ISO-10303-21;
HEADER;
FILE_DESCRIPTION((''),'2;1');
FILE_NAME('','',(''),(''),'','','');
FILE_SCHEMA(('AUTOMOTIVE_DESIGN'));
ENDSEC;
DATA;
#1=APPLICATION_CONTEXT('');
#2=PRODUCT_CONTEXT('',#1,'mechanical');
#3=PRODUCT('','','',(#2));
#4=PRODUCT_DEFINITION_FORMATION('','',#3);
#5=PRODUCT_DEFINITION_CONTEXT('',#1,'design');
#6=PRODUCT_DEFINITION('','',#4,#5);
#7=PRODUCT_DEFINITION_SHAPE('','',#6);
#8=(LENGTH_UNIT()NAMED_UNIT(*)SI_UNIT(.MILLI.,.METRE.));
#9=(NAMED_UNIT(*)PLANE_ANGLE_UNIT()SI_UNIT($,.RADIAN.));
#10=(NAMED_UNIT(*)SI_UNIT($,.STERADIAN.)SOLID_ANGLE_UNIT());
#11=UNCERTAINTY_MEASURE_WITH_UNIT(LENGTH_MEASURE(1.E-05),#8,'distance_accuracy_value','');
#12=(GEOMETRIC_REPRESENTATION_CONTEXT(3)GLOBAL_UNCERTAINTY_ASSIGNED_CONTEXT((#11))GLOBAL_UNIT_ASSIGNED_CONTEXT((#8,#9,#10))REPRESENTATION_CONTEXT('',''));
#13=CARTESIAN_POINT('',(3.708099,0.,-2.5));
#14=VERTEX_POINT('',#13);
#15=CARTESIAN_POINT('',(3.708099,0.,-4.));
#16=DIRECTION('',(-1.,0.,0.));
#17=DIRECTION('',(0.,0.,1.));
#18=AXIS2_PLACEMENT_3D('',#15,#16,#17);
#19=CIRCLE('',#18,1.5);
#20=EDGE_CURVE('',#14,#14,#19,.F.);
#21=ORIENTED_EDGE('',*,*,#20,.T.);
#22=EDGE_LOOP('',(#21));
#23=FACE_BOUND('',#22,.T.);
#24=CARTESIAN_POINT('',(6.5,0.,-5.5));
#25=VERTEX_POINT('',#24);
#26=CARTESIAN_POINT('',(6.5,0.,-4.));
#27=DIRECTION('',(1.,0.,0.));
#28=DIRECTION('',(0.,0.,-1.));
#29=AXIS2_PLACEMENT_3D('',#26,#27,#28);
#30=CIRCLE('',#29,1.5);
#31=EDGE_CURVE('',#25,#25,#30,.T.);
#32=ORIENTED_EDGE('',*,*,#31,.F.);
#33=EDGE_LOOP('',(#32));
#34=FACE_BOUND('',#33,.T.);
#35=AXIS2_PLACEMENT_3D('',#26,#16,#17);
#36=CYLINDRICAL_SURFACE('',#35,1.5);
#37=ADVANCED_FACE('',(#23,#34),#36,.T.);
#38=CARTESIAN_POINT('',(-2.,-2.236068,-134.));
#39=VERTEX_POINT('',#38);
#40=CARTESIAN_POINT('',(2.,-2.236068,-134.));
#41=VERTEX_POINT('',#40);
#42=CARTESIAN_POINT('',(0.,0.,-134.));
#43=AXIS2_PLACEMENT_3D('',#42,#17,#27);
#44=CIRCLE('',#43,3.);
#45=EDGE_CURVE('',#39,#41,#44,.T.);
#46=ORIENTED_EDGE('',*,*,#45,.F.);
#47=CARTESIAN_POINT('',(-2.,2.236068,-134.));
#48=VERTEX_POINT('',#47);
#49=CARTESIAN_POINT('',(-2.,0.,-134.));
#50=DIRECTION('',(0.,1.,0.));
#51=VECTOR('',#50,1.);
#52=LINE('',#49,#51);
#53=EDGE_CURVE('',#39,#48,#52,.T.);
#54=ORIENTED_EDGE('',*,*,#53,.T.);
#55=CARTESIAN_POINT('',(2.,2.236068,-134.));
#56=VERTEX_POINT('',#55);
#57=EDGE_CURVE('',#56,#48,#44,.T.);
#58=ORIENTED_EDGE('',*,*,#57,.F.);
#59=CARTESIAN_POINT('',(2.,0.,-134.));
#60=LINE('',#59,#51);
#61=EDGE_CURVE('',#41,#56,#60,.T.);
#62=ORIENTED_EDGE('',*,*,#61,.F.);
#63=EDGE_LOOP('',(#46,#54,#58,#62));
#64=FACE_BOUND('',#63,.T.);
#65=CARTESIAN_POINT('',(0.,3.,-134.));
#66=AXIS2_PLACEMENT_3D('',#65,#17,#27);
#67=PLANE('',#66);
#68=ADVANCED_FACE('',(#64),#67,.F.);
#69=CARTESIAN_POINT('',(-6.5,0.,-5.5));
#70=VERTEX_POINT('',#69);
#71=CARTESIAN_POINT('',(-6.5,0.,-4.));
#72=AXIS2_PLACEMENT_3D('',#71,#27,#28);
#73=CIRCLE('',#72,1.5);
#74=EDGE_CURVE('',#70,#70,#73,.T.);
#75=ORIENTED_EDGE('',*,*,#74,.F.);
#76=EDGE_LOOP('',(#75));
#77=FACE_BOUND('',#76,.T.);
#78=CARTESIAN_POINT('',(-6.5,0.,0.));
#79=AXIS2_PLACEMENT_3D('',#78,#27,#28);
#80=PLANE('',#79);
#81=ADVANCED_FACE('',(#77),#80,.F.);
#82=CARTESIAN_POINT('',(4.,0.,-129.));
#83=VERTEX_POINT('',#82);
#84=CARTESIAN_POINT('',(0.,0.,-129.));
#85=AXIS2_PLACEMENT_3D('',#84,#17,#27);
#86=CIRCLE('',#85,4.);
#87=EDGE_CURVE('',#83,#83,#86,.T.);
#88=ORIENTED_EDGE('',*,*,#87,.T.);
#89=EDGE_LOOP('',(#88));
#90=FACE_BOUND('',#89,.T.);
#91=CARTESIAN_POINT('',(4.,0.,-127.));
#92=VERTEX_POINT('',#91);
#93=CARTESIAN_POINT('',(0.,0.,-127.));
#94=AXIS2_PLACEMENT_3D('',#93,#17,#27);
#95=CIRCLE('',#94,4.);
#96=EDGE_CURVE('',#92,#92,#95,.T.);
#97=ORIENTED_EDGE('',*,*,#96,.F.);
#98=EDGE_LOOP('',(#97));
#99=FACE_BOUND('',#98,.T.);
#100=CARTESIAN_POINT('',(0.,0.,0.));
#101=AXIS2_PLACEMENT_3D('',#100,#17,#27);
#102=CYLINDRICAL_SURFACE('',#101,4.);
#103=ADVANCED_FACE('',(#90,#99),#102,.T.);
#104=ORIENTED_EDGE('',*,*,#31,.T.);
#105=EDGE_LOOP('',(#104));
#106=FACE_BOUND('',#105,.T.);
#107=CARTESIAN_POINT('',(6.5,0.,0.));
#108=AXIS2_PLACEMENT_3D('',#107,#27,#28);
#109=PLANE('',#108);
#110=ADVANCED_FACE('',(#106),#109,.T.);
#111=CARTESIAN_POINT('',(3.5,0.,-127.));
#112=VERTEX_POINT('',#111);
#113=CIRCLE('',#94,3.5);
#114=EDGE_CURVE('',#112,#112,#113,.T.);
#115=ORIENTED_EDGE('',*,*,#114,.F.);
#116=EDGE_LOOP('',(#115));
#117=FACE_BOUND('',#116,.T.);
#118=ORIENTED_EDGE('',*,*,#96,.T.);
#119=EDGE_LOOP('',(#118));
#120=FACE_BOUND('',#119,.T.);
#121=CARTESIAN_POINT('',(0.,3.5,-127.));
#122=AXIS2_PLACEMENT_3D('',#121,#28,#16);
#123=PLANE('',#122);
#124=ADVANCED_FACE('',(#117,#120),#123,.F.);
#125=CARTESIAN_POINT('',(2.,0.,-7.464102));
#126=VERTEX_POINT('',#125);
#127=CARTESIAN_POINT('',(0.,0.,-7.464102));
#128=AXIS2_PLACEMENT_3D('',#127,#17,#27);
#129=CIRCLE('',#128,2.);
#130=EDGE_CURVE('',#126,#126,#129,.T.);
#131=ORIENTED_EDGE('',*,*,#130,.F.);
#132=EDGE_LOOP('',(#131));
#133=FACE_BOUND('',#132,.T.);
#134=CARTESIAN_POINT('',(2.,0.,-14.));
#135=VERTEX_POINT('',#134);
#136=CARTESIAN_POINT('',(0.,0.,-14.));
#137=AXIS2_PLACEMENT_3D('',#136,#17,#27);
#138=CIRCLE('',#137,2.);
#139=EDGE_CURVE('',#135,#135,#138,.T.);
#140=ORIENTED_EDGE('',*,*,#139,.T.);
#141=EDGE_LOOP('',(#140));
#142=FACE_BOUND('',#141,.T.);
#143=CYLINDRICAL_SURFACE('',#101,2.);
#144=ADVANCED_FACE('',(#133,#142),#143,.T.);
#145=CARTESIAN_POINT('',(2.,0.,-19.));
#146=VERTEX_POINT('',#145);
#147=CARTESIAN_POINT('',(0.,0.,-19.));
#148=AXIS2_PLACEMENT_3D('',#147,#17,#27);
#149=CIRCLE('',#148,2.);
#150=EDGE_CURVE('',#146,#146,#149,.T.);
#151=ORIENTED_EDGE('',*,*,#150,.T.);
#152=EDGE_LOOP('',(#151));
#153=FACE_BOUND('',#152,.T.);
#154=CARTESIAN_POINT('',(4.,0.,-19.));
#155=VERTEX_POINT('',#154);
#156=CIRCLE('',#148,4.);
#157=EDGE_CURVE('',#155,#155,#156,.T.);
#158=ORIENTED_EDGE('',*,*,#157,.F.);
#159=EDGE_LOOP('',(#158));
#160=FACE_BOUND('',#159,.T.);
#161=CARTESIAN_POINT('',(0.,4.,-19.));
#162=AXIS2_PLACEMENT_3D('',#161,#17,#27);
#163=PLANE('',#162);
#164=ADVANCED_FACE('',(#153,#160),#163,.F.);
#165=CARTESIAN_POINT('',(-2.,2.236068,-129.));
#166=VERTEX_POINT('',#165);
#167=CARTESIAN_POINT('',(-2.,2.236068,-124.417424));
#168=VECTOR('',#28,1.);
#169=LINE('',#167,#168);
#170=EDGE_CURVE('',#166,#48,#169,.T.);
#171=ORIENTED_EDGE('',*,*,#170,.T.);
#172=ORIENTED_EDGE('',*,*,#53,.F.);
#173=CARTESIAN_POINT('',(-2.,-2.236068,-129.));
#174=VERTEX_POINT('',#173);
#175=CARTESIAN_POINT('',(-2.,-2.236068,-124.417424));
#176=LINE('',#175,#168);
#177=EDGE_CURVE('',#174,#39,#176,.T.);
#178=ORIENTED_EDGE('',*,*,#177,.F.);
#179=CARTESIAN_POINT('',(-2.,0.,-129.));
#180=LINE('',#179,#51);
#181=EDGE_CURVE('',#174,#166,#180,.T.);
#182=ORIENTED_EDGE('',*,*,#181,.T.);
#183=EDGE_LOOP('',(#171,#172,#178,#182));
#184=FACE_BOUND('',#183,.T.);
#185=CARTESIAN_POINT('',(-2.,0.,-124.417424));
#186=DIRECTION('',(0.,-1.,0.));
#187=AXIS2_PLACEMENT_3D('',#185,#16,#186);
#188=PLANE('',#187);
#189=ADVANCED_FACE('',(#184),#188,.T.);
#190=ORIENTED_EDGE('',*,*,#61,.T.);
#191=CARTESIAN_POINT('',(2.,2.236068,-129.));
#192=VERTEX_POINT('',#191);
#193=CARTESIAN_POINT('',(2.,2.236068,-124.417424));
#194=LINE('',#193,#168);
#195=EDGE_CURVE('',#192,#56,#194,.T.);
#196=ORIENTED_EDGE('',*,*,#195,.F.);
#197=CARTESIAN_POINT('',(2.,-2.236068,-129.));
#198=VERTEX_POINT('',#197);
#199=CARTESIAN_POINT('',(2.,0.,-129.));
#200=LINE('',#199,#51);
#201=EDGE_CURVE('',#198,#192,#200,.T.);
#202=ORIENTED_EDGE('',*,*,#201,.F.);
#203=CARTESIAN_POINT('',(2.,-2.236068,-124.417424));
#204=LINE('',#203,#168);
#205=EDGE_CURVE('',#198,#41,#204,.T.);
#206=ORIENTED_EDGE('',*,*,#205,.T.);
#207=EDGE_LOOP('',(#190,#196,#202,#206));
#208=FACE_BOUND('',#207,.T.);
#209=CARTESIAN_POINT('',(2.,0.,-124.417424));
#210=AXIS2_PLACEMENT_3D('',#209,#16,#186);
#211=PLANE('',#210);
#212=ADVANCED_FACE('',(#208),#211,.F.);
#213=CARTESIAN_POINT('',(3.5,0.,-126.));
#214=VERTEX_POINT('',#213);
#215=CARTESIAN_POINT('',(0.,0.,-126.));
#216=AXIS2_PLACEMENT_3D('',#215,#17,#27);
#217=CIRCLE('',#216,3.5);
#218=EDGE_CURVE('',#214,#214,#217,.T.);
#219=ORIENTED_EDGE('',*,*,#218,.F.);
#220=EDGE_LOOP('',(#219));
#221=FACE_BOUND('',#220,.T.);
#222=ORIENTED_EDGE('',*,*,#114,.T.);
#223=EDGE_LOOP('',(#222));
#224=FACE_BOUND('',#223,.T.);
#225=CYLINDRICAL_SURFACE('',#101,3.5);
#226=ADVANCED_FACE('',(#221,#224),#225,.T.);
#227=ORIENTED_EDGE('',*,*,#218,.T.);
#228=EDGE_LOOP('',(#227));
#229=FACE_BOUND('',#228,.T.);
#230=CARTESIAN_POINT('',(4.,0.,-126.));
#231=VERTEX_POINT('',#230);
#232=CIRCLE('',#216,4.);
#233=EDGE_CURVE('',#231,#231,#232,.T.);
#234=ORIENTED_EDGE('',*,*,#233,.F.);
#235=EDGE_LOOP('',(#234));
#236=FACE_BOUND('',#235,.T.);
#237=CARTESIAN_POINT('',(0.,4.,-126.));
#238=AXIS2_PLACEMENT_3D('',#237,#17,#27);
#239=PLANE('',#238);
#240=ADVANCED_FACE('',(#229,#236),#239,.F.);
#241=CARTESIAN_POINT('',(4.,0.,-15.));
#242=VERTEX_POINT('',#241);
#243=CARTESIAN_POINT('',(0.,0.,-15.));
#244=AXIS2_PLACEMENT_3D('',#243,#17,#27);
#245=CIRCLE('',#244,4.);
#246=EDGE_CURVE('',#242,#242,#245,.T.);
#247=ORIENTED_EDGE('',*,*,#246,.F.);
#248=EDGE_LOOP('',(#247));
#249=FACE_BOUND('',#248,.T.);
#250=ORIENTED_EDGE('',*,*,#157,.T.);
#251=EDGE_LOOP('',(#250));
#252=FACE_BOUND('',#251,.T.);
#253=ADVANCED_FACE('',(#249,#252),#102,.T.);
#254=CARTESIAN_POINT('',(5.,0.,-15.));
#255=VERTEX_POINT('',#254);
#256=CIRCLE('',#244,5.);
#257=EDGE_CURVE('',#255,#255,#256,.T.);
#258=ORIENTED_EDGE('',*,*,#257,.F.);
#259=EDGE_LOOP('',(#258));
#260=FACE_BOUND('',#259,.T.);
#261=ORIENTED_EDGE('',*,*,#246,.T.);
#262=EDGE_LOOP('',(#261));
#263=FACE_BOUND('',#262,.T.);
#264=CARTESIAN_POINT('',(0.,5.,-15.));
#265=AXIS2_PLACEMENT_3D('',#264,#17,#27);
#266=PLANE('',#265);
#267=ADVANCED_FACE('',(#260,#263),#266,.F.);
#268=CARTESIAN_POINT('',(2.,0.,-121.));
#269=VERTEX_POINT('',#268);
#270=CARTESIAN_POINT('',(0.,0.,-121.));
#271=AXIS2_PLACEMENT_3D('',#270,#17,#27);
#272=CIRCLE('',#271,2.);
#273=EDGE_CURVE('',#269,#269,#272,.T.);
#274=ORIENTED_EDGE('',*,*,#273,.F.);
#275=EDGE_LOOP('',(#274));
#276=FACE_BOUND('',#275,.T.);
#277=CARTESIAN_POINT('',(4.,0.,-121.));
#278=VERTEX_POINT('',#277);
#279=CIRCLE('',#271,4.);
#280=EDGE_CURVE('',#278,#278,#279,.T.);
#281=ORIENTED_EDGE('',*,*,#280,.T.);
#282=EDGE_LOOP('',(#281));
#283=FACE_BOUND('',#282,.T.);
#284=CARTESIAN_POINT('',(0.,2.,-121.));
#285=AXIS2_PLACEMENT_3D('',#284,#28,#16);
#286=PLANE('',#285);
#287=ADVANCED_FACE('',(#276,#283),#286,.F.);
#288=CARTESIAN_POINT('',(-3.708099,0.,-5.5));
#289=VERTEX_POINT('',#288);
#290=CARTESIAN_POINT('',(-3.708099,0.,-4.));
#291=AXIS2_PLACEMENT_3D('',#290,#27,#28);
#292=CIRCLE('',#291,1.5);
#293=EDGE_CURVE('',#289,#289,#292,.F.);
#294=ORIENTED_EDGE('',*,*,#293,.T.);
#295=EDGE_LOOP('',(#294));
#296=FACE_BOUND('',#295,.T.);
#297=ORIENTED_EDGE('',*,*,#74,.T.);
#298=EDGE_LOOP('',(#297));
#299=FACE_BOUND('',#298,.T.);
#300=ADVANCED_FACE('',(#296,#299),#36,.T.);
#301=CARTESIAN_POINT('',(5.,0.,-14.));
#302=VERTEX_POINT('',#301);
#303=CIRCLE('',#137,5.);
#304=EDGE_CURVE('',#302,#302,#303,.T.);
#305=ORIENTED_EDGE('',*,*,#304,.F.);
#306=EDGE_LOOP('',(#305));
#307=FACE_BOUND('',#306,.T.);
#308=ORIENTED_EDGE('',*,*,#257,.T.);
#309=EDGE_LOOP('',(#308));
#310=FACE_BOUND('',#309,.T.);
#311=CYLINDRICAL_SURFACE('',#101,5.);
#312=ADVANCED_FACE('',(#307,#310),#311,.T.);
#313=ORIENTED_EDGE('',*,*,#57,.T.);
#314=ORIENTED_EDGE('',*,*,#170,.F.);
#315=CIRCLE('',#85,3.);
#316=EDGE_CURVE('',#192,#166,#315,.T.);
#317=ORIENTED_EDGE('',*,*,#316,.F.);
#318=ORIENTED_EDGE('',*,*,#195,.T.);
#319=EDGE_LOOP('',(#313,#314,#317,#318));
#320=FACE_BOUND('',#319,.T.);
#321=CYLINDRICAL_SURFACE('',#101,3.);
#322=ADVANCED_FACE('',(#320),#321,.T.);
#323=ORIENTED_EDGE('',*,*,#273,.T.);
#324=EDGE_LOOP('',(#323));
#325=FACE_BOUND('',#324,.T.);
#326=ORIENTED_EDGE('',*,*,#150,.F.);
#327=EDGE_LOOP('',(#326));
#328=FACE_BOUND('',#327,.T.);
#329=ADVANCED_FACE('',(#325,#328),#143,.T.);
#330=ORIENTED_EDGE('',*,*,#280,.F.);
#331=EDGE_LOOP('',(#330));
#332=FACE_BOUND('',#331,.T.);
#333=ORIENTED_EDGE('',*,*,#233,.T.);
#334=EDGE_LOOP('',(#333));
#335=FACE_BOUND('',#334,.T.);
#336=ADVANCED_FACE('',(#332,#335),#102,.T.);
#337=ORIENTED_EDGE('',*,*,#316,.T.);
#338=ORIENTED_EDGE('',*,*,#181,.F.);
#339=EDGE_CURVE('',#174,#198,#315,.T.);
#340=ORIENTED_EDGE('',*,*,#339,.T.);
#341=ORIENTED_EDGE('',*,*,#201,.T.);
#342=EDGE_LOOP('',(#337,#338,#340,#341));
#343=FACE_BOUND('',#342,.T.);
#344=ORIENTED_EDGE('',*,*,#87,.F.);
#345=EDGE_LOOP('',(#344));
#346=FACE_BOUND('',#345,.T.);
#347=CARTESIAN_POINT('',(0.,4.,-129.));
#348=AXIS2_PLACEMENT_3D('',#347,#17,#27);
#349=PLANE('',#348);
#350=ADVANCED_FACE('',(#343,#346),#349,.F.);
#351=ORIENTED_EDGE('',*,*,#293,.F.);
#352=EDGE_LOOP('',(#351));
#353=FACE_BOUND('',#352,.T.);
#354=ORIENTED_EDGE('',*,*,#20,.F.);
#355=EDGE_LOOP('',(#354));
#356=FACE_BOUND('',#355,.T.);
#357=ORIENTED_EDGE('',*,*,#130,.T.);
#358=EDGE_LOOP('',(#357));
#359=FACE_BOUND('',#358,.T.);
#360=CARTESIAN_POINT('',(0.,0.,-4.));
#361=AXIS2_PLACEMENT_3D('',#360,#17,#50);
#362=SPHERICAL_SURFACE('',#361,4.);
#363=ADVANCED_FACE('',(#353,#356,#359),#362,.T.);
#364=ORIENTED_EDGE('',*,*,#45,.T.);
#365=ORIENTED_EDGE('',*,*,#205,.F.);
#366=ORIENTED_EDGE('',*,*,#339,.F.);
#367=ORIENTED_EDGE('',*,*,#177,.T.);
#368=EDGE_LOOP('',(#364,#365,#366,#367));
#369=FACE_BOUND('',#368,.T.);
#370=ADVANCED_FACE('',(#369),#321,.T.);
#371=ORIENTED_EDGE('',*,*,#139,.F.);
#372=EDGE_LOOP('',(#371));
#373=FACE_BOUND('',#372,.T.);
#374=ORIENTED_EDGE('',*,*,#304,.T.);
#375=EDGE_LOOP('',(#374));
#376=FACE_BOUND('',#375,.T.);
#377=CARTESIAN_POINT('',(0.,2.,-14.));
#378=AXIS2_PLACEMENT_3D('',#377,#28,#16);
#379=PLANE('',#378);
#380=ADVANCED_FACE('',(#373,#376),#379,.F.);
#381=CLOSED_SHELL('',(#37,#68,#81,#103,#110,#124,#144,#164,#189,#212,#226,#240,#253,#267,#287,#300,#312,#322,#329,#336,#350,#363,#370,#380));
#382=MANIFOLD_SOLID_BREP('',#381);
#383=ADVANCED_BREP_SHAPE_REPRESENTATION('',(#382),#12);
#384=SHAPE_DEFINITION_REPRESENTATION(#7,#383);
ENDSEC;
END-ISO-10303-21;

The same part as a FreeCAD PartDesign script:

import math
import FreeCAD as App
import Part
import Sketcher
from FreeCAD import Vector
Q = App.Units.Quantity

doc = App.newDocument("Part")
body = doc.addObject("PartDesign::Body", "Body")

# Sketch on YZ plane
sketch1 = doc.addObject("Sketcher::SketchObject", "Sketch")
body.addObject(sketch1)
sketch1.AttachmentSupport = (doc.YZ_Plane, [""])
sketch1.MapMode = "FlatFace"
sketch1.addGeometry([
    Part.LineSegment(Vector(2, -14, 0), Vector(2, -7.5, 0)),  # 0
    Part.ArcOfCircle(Part.Circle(Vector(0, -4, 0), Vector(0, 0, 1), 4), math.radians(-60), math.radians(90)),  # 1
    Part.LineSegment(Vector(0, 0, 0), Vector(0, -134, 0)),  # 2
    Part.LineSegment(Vector(0, -134, 0), Vector(3, -134, 0)),  # 3
    Part.LineSegment(Vector(3, -134, 0), Vector(3, -129, 0)),  # 4
    Part.LineSegment(Vector(3, -129, 0), Vector(4, -129, 0)),  # 5
    Part.LineSegment(Vector(4, -129, 0), Vector(4, -127, 0)),  # 6
    Part.LineSegment(Vector(4, -127, 0), Vector(3.5, -127, 0)),  # 7
    Part.LineSegment(Vector(3.5, -127, 0), Vector(3.5, -126, 0)),  # 8
    Part.LineSegment(Vector(3.5, -126, 0), Vector(4, -126, 0)),  # 9
    Part.LineSegment(Vector(4, -126, 0), Vector(4, -121, 0)),  # 10
    Part.LineSegment(Vector(4, -121, 0), Vector(2, -121, 0)),  # 11
    Part.LineSegment(Vector(2, -121, 0), Vector(2, -19, 0)),  # 12
    Part.LineSegment(Vector(2, -19, 0), Vector(4, -19, 0)),  # 13
    Part.LineSegment(Vector(4, -19, 0), Vector(4, -15, 0)),  # 14
    Part.LineSegment(Vector(4, -15, 0), Vector(5, -15, 0)),  # 15
    Part.LineSegment(Vector(5, -15, 0), Vector(5, -14, 0)),  # 16
    Part.LineSegment(Vector(5, -14, 0), Vector(2, -14, 0)),  # 17
], False)
sketch1.addConstraint([
    Sketcher.Constraint("Coincident", 0, 2, 1, 1),
    Sketcher.Constraint("Coincident", 1, 2, 2, 1),
    Sketcher.Constraint("Coincident", 2, 2, 3, 1),
    Sketcher.Constraint("Coincident", 3, 2, 4, 1),
    Sketcher.Constraint("Coincident", 4, 2, 5, 1),
    Sketcher.Constraint("Coincident", 5, 2, 6, 1),
    Sketcher.Constraint("Coincident", 6, 2, 7, 1),
    Sketcher.Constraint("Coincident", 7, 2, 8, 1),
    Sketcher.Constraint("Coincident", 8, 2, 9, 1),
    Sketcher.Constraint("Coincident", 9, 2, 10, 1),
    Sketcher.Constraint("Coincident", 10, 2, 11, 1),
    Sketcher.Constraint("Coincident", 11, 2, 12, 1),
    Sketcher.Constraint("Coincident", 12, 2, 13, 1),
    Sketcher.Constraint("Coincident", 13, 2, 14, 1),
    Sketcher.Constraint("Coincident", 14, 2, 15, 1),
    Sketcher.Constraint("Coincident", 15, 2, 16, 1),
    Sketcher.Constraint("Coincident", 16, 2, 17, 1),
    Sketcher.Constraint("Coincident", 17, 2, 0, 1),
    Sketcher.Constraint("Vertical", 0),
    Sketcher.Constraint("Vertical", 2),
    Sketcher.Constraint("Horizontal", 3),
    Sketcher.Constraint("Vertical", 4),
    Sketcher.Constraint("Horizontal", 5),
    Sketcher.Constraint("Vertical", 6),
    Sketcher.Constraint("Horizontal", 7),
    Sketcher.Constraint("Vertical", 8),
    Sketcher.Constraint("Horizontal", 9),
    Sketcher.Constraint("Vertical", 10),
    Sketcher.Constraint("Horizontal", 11),
    Sketcher.Constraint("Vertical", 12),
    Sketcher.Constraint("Horizontal", 13),
    Sketcher.Constraint("Vertical", 14),
    Sketcher.Constraint("Horizontal", 15),
    Sketcher.Constraint("Vertical", 16),
    Sketcher.Constraint("Horizontal", 17),
    Sketcher.Constraint("Coincident", 1, 2, -1, 1),
    Sketcher.Constraint("PointOnObject", 1, 3, -2),
    Sketcher.Constraint("Vertical", 6, 2, 9, 2),
    Sketcher.Constraint("Vertical", 0, 2, 11, 2),
    Sketcher.Constraint("Vertical", 10, 2, 13, 2),
    Sketcher.Constraint("Equal", 5, 15),
    Sketcher.Constraint("Equal", 3, 17),
    Sketcher.Constraint("Equal", 13, 6),
    Sketcher.Constraint("Equal", 15, 8),
    Sketcher.Constraint("Equal", 4, 10),
    Sketcher.Constraint("Equal", 8, 16),
    Sketcher.Constraint("Radius", 1, Q("4 mm")),
    Sketcher.Constraint("DistanceX", 3, 1, 3, 2, Q("3 mm")),
    Sketcher.Constraint("DistanceX", 5, 1, 5, 2, Q("1 mm")),
    Sketcher.Constraint("DistanceY", 2, 2, 2, 1, Q("134 mm")),
    Sketcher.Constraint("DistanceY", 4, 1, 4, 2, Q("5 mm")),
    Sketcher.Constraint("DistanceY", 12, 1, 12, 2, Q("102 mm")),
    Sketcher.Constraint("DistanceY", 14, 1, 14, 2, Q("4 mm")),
    Sketcher.Constraint("DistanceX", 7, 2, 7, 1, Q("0.5 mm")),
])
revolution = doc.addObject("PartDesign::Revolution", "Revolution")
body.addObject(revolution)
revolution.Profile = sketch1
revolution.ReferenceAxis = (sketch1, ["V_Axis"])
revolution.Angle = 360

# Sketch on XY plane
sketch2 = doc.addObject("Sketcher::SketchObject", "Sketch001")
body.addObject(sketch2)
sketch2.AttachmentSupport = (doc.XY_Plane, [""])
sketch2.MapMode = "FlatFace"
sketch2.AttachmentOffset = App.Placement(Vector(0, 0, -134), App.Rotation())
sketch2.addGeometry([
    Part.ArcOfCircle(Part.Circle(Vector(0, 0, 0), Vector(0, 0, 1), 3), math.radians(-48), math.radians(48)),  # 0
    Part.LineSegment(Vector(2, -2.2, 0), Vector(2, 2.2, 0)),  # 1
    Part.LineSegment(Vector(-2, 2.2, 0), Vector(-2, -2.2, 0)),  # 2
    Part.ArcOfCircle(Part.Circle(Vector(0, 0, 0), Vector(0, 0, 1), 3), math.radians(180), math.radians(228)),  # 3
    Part.ArcOfCircle(Part.Circle(Vector(0, 0, 0), Vector(0, 0, 1), 3), math.radians(132), math.radians(180)),  # 4
], False)
sketch2.addConstraint([
    Sketcher.Constraint("Coincident", 0, 1, 1, 1),
    Sketcher.Constraint("Coincident", 1, 2, 0, 2),
    Sketcher.Constraint("Coincident", 2, 2, 3, 2),
    Sketcher.Constraint("Tangent", 3, 1, 4, 2),
    Sketcher.Constraint("Coincident", 4, 1, 2, 1),
    Sketcher.Constraint("Vertical", 1),
    Sketcher.Constraint("Vertical", 2),
    Sketcher.Constraint("Coincident", 0, 3, -1, 1),
    Sketcher.Constraint("Coincident", 3, 3, -1, 1),
    Sketcher.Constraint("Equal", 0, 3),
    Sketcher.Constraint("Equal", 3, 4),
    Sketcher.Constraint("PointOnObject", 3, 1, -1),
    Sketcher.Constraint("Horizontal", 0, 1, 2, 2),
    Sketcher.Constraint("Radius", 0, Q("3 mm")),
    Sketcher.Constraint("DistanceX", -1, 1, 0, 1, Q("2 mm")),
])
pocket1 = doc.addObject("PartDesign::Pocket", "Pocket")
body.addObject(pocket1)
pocket1.Profile = sketch2
pocket1.Length = 5
pocket1.Reversed = True

# Sketch on YZ plane
sketch3 = doc.addObject("Sketcher::SketchObject", "Sketch002")
body.addObject(sketch3)
sketch3.AttachmentSupport = (doc.YZ_Plane, [""])
sketch3.MapMode = "FlatFace"
sketch3.addGeometry(Part.Circle(Vector(0, -4, 0), Vector(0, 0, 1), 1.5), False)
sketch3.addConstraint([
    Sketcher.Constraint("PointOnObject", 0, 3, -2),
    Sketcher.Constraint("Diameter", 0, Q("3 mm")),
    Sketcher.Constraint("DistanceY", 0, 3, -1, 1, Q("4 mm")),
])
pad1 = doc.addObject("PartDesign::Pad", "Pad")
body.addObject(pad1)
pad1.Profile = sketch3
pad1.Length = 13
pad1.Midplane = True

doc.recompute()
